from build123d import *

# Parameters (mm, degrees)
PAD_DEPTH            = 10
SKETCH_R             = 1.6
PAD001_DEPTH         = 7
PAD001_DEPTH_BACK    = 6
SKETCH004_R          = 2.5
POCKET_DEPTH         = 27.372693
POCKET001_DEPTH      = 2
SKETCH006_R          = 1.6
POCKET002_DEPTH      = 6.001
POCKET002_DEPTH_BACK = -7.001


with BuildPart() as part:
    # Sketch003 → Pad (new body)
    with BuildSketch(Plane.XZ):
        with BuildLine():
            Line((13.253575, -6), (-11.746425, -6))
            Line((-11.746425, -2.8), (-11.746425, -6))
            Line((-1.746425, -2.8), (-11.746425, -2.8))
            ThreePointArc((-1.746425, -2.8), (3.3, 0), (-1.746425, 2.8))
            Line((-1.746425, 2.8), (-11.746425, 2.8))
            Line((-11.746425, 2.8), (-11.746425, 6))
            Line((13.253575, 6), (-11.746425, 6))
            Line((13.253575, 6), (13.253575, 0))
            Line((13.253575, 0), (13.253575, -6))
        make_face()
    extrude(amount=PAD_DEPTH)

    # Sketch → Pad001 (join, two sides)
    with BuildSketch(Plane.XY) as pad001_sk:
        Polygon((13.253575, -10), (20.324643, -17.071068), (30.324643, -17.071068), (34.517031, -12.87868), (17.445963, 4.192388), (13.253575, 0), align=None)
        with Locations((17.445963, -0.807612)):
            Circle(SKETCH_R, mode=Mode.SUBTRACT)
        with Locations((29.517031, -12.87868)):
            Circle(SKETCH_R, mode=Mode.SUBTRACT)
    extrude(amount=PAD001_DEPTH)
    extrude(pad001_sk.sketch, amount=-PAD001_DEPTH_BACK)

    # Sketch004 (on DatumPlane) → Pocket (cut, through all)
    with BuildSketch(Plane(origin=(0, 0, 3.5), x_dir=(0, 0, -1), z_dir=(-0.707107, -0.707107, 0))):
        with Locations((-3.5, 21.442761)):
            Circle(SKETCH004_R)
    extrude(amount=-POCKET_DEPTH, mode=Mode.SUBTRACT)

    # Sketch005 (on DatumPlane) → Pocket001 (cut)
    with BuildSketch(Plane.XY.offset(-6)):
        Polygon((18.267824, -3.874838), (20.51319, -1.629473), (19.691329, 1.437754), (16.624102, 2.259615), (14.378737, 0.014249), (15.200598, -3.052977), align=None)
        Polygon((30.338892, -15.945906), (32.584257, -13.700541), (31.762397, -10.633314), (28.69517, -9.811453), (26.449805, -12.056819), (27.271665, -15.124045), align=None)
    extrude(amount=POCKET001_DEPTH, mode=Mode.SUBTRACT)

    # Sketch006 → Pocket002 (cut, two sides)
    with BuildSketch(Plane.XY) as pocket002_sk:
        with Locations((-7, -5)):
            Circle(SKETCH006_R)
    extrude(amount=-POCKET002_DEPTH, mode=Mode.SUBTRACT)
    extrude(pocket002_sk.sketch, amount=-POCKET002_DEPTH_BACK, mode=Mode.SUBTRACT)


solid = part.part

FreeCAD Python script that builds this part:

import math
import FreeCAD as App
import Part
import Sketcher
Q = App.Units.Quantity


def add_polygon(sketch, points):
    """Adds a closed chain of lines whose ends are joined by coincident constraints."""
    first, n = sketch.GeometryCount, len(points)
    for a, b in zip(points, points[1:] + points[:1]):
        sketch.addGeometry(Part.LineSegment(App.Vector(*a, 0), App.Vector(*b, 0)), False)
    for i in range(n):
        sketch.addConstraint(Sketcher.Constraint("Coincident", first + i, 2, first + (i + 1) % n, 1))

doc = App.newDocument("Part")
body = doc.addObject("PartDesign::Body", "Body")

# Sketch on XZ plane
sketch1 = body.newObject("Sketcher::SketchObject", "Sketch")
sketch1.AttachmentSupport = (doc.getObject("XZ_Plane"), [""])
sketch1.MapMode = "FlatFace"
sketch1.addGeometry([
    Part.LineSegment(App.Vector(-11.746425, -6, 0), App.Vector(13.253575, -6, 0)),  # 0
    Part.LineSegment(App.Vector(13.253575, -6, 0), App.Vector(13.253575, 6, 0)),  # 1
    Part.LineSegment(App.Vector(13.253575, 6, 0), App.Vector(-11.746425, 6, 0)),  # 2
    Part.LineSegment(App.Vector(-11.746425, 6, 0), App.Vector(-11.746425, 2.8, 0)),  # 3
    Part.LineSegment(App.Vector(-11.746425, 2.8, 0), App.Vector(-1.746425, 2.8, 0)),  # 4
    Part.ArcOfCircle(Part.Circle(App.Vector(0, 0, 0), App.Vector(0, 0, 1), 3.3), math.radians(-121.952747), math.radians(121.952747)),  # 5
    Part.LineSegment(App.Vector(-1.746425, -2.8, 0), App.Vector(-11.746425, -2.8, 0)),  # 6
    Part.LineSegment(App.Vector(-11.746425, -2.8, 0), App.Vector(-11.746425, -6, 0)),  # 7
], False)
sketch1.addConstraint([
    Sketcher.Constraint("Coincident", 0, 2, 1, 1),
    Sketcher.Constraint("Coincident", 1, 2, 2, 1),
    Sketcher.Constraint("Coincident", 2, 2, 3, 1),
    Sketcher.Constraint("Coincident", 3, 2, 4, 1),
    Sketcher.Constraint("Coincident", 4, 2, 5, 2),
    Sketcher.Constraint("Coincident", 5, 1, 6, 1),
    Sketcher.Constraint("Coincident", 6, 2, 7, 1),
    Sketcher.Constraint("Coincident", 7, 2, 0, 1),
    Sketcher.Constraint("Horizontal", 0),
    Sketcher.Constraint("Vertical", 1),
    Sketcher.Constraint("Horizontal", 2),
    Sketcher.Constraint("Vertical", 3),
    Sketcher.Constraint("Horizontal", 4),
    Sketcher.Constraint("Horizontal", 6),
    Sketcher.Constraint("Vertical", 7),
    Sketcher.Constraint("Coincident", 5, 3, -1, 1),
    Sketcher.Constraint("Symmetric", 3, 2, 6, 2, -1),
    Sketcher.Constraint("Equal", 3, 7),
    Sketcher.Constraint("Radius", 5, Q("3.3 mm")),
    Sketcher.Constraint("DistanceX", 0, 1, 0, 2, Q("25 mm")),
    Sketcher.Constraint("DistanceX", 4, 1, 4, 2, Q("10 mm")),
    Sketcher.Constraint("DistanceY", 1, 1, 1, 2, Q("12 mm")),
    Sketcher.Constraint("DistanceY", 3, 2, 3, 1, Q("3.2 mm")),
])
pad1 = body.newObject("PartDesign::Pad", "Pad")
pad1.Profile = sketch1
pad1.Length = 10

# Sketch on XY plane
sketch2 = body.newObject("Sketcher::SketchObject", "Sketch001")
sketch2.AttachmentSupport = (doc.getObject("XY_Plane"), [""])
sketch2.MapMode = "FlatFace"
add_polygon(sketch2, [(13.253575, -10), (20.324643, -17.071068), (30.324643, -17.071068), (34.517031, -12.87868), (17.445963, 4.192388), (13.253575, 0)])  # lines 0-5
sketch2.addGeometry(Part.Circle(App.Vector(29.517031, -12.87868, 0), App.Vector(0, 0, 1), 1.6), False)  # 6
sketch2.addGeometry(Part.Circle(App.Vector(17.445963, -0.807612, 0), App.Vector(0, 0, 1), 1.6), False)  # 7
sketch2.addConstraint([
    Sketcher.Constraint("Horizontal", 1),
    Sketcher.Constraint("Vertical", 5),
    Sketcher.Constraint("Equal", 6, 7),
    Sketcher.Constraint("PointOnObject", 4, 2, -1),
    Sketcher.Constraint("Perpendicular", 0, 2),
    Sketcher.Constraint("Perpendicular", 2, 3),
    Sketcher.Constraint("Perpendicular", 3, 4),
    Sketcher.Constraint("Horizontal", 6, 3, 2, 2),
    Sketcher.Constraint("Vertical", 7, 3, 3, 2),
    Sketcher.Constraint("Equal", 1, 5),
    Sketcher.Constraint("Equal", 2, 4),
    Sketcher.Constraint("Diameter", 6, Q("3.2 mm")),
    Sketcher.Constraint("DistanceX", 1, 1, 1, 2, Q("10 mm")),
    Sketcher.Constraint("Distance", 0, Q("10 mm")),
    Sketcher.Constraint("DistanceX", 6, 3, 2, 2, Q("5 mm")),
    Sketcher.Constraint("DistanceY", 7, 3, 3, 2, Q("5 mm")),
    Sketcher.Constraint("Distance", 2, Q("5.928932 mm")),
    Sketcher.Constraint("DistanceX", -1, 1, 6, 3, Q("29.517031 mm")),
])
pad2 = body.newObject("PartDesign::Pad", "Pad001")
pad2.Profile = sketch2
pad2.Type = "TwoLengths"
pad2.Length = 7
pad2.Length2 = 6

# Sketch on an angled plane
sketch3 = body.newObject("Sketcher::SketchObject", "Sketch002")
sketch3.Placement = App.Placement(App.Vector(0, 0, 3.5), App.Rotation(App.Vector(0, 0, -1), App.Vector(0.707106781, -0.707106781, 0), App.Vector(-0.707106781, -0.707106781, 0), "ZXY"))
sketch3.addGeometry(Part.Circle(App.Vector(-3.5, 21.442761, 0), App.Vector(0, 0, 1), 2.5), False)
sketch3.addConstraint([
    Sketcher.Constraint("Diameter", 0, Q("5 mm")),
    Sketcher.Constraint("DistanceX", 0, 3, -1, 1, Q("3.5 mm")),
    Sketcher.Constraint("DistanceY", -1, 1, 0, 3, Q("21.442761 mm")),
])
pocket1 = body.newObject("PartDesign::Pocket", "Pocket")
pocket1.Profile = sketch3
pocket1.Type = "ThroughAll"

# Sketch on XY plane
sketch4 = body.newObject("Sketcher::SketchObject", "Sketch003")
sketch4.AttachmentSupport = (doc.getObject("XY_Plane"), [""])
sketch4.MapMode = "FlatFace"
sketch4.AttachmentOffset = App.Placement(App.Vector(0, 0, -6), App.Rotation())
add_polygon(sketch4, [(18.267824, -3.874838), (20.51319, -1.629473), (19.691329, 1.437754), (16.624102, 2.259615), (14.378737, 0.014249), (15.200598, -3.052977)])  # lines 0-5
add_polygon(sketch4, [(30.338892, -15.945906), (32.584257, -13.700541), (31.762397, -10.633314), (28.69517, -9.811453), (26.449805, -12.056819), (27.271665, -15.124045)])  # lines 6-11
sketch4.addConstraint([
    Sketcher.Constraint("Parallel", 0, 3),
    Sketcher.Constraint("Parallel", 1, 4),
    Sketcher.Constraint("Parallel", 2, 5),
    Sketcher.Constraint("Parallel", 3, 6),
    Sketcher.Constraint("Parallel", 4, 7),
    Sketcher.Constraint("Parallel", 5, 8),
    Sketcher.Constraint("Parallel", 6, 9),
    Sketcher.Constraint("Parallel", 7, 10),
    Sketcher.Constraint("Parallel", 8, 11),
    Sketcher.Constraint("Equal", 0, 1),
    Sketcher.Constraint("Equal", 1, 2),
    Sketcher.Constraint("Equal", 2, 3),
    Sketcher.Constraint("Equal", 5, 6),
    Sketcher.Constraint("Equal", 6, 7),
    Sketcher.Constraint("Equal", 7, 8),
    Sketcher.Constraint("Equal", 8, 9),
    Sketcher.Constraint("Angle", 0, Q("44.999987 deg")),
    Sketcher.Constraint("Angle", 1, Q("105 deg")),
    Sketcher.Constraint("Angle", 2, Q("165 deg")),
    Sketcher.Constraint("DistanceX", 4, 2, 7, 2, Q("16.561799 mm")),
    Sketcher.Constraint("DistanceX", -1, 1, 0, 2, Q("20.51319 mm")),
    Sketcher.Constraint("DistanceX", -1, 1, 1, 2, Q("19.691329 mm")),
    Sketcher.Constraint("DistanceY", -1, 1, 3, 2, Q("0.014249 mm")),
    Sketcher.Constraint("DistanceY", 6, 2, -1, 1, Q("13.700541 mm")),
])
pocket2 = body.newObject("PartDesign::Pocket", "Pocket001")
pocket2.Profile = sketch4
pocket2.Length = 2
pocket2.Reversed = True

# Sketch on XY plane
sketch5 = body.newObject("Sketcher::SketchObject", "Sketch004")
sketch5.AttachmentSupport = (doc.getObject("XY_Plane"), [""])
sketch5.MapMode = "FlatFace"
sketch5.addGeometry(Part.Circle(App.Vector(-7, -5, 0), App.Vector(0, 0, 1), 1.6), False)
sketch5.addConstraint([
    Sketcher.Constraint("Diameter", 0, Q("3.2 mm")),
    Sketcher.Constraint("DistanceX", 0, 3, -1, 1, Q("7 mm")),
    Sketcher.Constraint("DistanceY", 0, 3, -1, 1, Q("5 mm")),
])
pocket3 = body.newObject("PartDesign::Pocket", "Pocket002")
pocket3.Profile = sketch5
pocket3.Type = "ThroughAll"
pocket3.Midplane = True

doc.recompute()
